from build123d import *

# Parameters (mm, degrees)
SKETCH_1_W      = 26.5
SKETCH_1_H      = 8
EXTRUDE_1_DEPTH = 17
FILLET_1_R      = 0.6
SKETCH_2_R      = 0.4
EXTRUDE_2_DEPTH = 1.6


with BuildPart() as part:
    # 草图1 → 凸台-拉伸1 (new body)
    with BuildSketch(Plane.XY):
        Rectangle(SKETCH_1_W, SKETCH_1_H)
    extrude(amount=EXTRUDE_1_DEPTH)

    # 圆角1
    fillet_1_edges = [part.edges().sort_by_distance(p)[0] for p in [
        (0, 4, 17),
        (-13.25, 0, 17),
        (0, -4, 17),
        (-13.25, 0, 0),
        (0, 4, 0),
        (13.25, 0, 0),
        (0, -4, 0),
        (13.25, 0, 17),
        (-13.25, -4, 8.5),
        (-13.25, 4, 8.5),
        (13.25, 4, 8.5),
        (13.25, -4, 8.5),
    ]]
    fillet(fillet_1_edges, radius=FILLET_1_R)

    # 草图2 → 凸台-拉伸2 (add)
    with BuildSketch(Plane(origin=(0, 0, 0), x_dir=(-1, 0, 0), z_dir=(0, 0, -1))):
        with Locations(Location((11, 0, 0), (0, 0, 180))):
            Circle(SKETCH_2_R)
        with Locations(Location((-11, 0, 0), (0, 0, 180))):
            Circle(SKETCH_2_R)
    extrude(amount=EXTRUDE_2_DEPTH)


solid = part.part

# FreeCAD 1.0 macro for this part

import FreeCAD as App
import Part
import Sketcher
from FreeCAD import Vector


def add_polygon(sketch, points):
    """Adds a closed chain of lines whose ends are joined by coincident constraints."""
    first, n = sketch.GeometryCount, len(points)
    for a, b in zip(points, points[1:] + points[:1]):
        sketch.addGeometry(Part.LineSegment(App.Vector(*a, 0), App.Vector(*b, 0)), False)
    for i in range(n):
        sketch.addConstraint(Sketcher.Constraint("Coincident", first + i, 2, first + (i + 1) % n, 1))

doc = App.newDocument("Part")
body = doc.addObject("PartDesign::Body", "Body")

sketch1 = doc.addObject("Sketcher::SketchObject", "Sketch")
body.addObject(sketch1)
sketch1.AttachmentSupport = (doc.XY_Plane, [""])
sketch1.MapMode = "FlatFace"
add_polygon(sketch1, [(-13, 4), (-13, -4), (13, -4), (13, 4)])
sketch1.addConstraint(Sketcher.Constraint("Vertical", 0))
sketch1.addConstraint(Sketcher.Constraint("Horizontal", 1))
sketch1.addConstraint(Sketcher.Constraint("Vertical", 2))
sketch1.addConstraint(Sketcher.Constraint("Horizontal", 3))
sketch1.addConstraint(Sketcher.Constraint("Symmetric", 0, 2, 2, 2, -1, 1))
sketch1.addConstraint(Sketcher.Constraint("DistanceY", 0, 2, 0, 1, 8.0))
sketch1.addConstraint(Sketcher.Constraint("DistanceX", 1, 1, 1, 2, 26.5))
pad1 = doc.addObject("PartDesign::Pad", "Pad")
body.addObject(pad1)
pad1.Profile = sketch1
pad1.Length = 17
doc.recompute()

fillet = doc.addObject("PartDesign::Fillet", "Fillet")
body.addObject(fillet)
fillet.Base = (pad1, ["Edge1"])
fillet.UseAllEdges = True
fillet.Radius = 0.6

sketch2 = doc.addObject("Sketcher::SketchObject", "Sketch001")
body.addObject(sketch2)
sketch2.AttachmentSupport = (doc.XY_Plane, [""])
sketch2.MapMode = "FlatFace"
sketch2.addGeometry(Part.Circle(Vector(-11, 0, 0), Vector(0, 0, 1), 0.4), False)
sketch2.addGeometry(Part.Circle(Vector(11, 0, 0), Vector(0, 0, 1), 0.4), False)
sketch2.addConstraint(Sketcher.Constraint("Equal", 0, 1))
sketch2.addConstraint(Sketcher.Constraint("Symmetric", 0, 3, 1, 3, -1, 1))
sketch2.addConstraint(Sketcher.Constraint("PointOnObject", 0, 3, -1))
sketch2.addConstraint(Sketcher.Constraint("Diameter", 0, 0.8))
sketch2.addConstraint(Sketcher.Constraint("DistanceX", 0, 3, -1, 1, 11.0))
pad2 = doc.addObject("PartDesign::Pad", "Pad001")
body.addObject(pad2)
pad2.Profile = sketch2
pad2.Length = 1.6
pad2.Reversed = True

doc.recompute()
